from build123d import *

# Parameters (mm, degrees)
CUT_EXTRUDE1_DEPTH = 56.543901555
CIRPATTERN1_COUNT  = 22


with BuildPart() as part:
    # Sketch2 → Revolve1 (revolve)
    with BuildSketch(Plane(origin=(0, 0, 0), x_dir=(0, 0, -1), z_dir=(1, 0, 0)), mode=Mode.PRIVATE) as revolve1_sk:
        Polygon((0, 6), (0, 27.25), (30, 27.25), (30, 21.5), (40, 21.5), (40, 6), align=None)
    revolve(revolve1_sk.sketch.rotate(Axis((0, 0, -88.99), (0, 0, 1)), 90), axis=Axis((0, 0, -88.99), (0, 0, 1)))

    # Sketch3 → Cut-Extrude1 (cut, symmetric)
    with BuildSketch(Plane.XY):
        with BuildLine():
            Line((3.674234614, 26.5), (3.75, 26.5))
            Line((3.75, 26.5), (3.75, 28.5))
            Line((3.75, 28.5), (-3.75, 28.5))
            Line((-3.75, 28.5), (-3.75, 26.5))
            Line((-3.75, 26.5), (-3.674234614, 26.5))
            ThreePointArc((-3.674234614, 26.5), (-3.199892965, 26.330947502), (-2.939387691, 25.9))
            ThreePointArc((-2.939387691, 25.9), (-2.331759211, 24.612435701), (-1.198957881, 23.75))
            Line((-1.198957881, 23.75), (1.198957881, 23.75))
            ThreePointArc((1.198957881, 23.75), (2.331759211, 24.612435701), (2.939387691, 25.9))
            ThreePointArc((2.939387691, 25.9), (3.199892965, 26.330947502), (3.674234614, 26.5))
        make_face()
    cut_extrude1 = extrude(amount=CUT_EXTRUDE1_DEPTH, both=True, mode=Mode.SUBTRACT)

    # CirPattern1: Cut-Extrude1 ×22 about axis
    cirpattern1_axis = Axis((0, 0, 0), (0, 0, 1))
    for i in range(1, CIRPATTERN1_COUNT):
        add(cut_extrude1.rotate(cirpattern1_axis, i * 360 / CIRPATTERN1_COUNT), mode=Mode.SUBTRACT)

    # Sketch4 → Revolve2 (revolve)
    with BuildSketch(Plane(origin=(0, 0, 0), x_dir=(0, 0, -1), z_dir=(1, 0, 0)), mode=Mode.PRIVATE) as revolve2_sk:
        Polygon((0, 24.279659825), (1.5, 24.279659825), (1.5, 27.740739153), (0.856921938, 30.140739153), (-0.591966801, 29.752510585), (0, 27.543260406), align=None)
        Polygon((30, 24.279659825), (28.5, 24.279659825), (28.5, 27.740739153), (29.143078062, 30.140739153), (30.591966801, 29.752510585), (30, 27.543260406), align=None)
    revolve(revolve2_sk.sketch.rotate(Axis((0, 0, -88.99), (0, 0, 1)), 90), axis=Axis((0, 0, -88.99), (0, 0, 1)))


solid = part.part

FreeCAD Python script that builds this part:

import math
import FreeCAD as App
import Part
import Sketcher

V = App.Vector
Q = App.Units.Quantity

doc = App.newDocument("Part")
body = doc.addObject("PartDesign::Body", "Body")

sketch1 = body.newObject("Sketcher::SketchObject", "Sketch")
sketch1.AttachmentSupport = (doc.getObject("YZ_Plane"), [""])
sketch1.MapMode = "FlatFace"
sketch1.addGeometry([
    Part.LineSegment(V(27, 0, 0), V(6, 0, 0)),
    Part.LineSegment(V(6, 0, 0), V(6, -40, 0)),
    Part.LineSegment(V(6, -40, 0), V(22, -40, 0)),
    Part.LineSegment(V(22, -40, 0), V(22, -30, 0)),
    Part.LineSegment(V(22, -30, 0), V(27, -30, 0)),
    Part.LineSegment(V(27, -30, 0), V(27, 0, 0)),
], False)
sketch1.addConstraint([
    Sketcher.Constraint("Coincident", 0, 2, 1, 1),
    Sketcher.Constraint("Coincident", 1, 2, 2, 1),
    Sketcher.Constraint("Coincident", 2, 2, 3, 1),
    Sketcher.Constraint("Coincident", 3, 2, 4, 1),
    Sketcher.Constraint("Coincident", 4, 2, 5, 1),
    Sketcher.Constraint("Coincident", 5, 2, 0, 1),
    Sketcher.Constraint("Horizontal", 0),
    Sketcher.Constraint("Vertical", 1),
    Sketcher.Constraint("Horizontal", 2),
    Sketcher.Constraint("Vertical", 3),
    Sketcher.Constraint("Horizontal", 4),
    Sketcher.Constraint("Vertical", 5),
    Sketcher.Constraint("PointOnObject", 0, 2, -1),
    Sketcher.Constraint("DistanceY", 1, 2, 1, 1, Q("40 mm")),
    Sketcher.Constraint("DistanceY", 3, 1, 3, 2, Q("10 mm")),
    Sketcher.Constraint("DistanceX", 2, 1, 2, 2, Q("15.5 mm")),
    Sketcher.Constraint("DistanceX", -1, 1, 0, 2, Q("6 mm")),
    Sketcher.Constraint("DistanceX", 0, 2, 0, 1, Q("21.25 mm")),
])
revolution = body.newObject("PartDesign::Revolution", "Revolution")
revolution.Profile = sketch1
revolution.ReferenceAxis = (sketch1, ["V_Axis"])
revolution.Angle = 360

sketch2 = body.newObject("Sketcher::SketchObject", "Sketch001")
sketch2.AttachmentSupport = (doc.getObject("XY_Plane"), [""])
sketch2.MapMode = "FlatFace"
sketch2.addGeometry([
    Part.LineSegment(V(3.67, 26.5, 0), V(3.75, 26.5, 0)),
    Part.LineSegment(V(3.75, 26.5, 0), V(3.75, 28.5, 0)),
    Part.LineSegment(V(3.75, 28.5, 0), V(-3.75, 28.5, 0)),
    Part.LineSegment(V(-3.75, 28.5, 0), V(-3.75, 26.5, 0)),
    Part.LineSegment(V(-3.75, 26.5, 0), V(-3.67, 26.5, 0)),
    Part.ArcOfCircle(Part.Circle(V(-3.67, 25.75, 0), V(0, 0, 1), 0.75), math.radians(12), math.radians(90)),
    Part.ArcOfCircle(Part.Circle(V(0, 26.5, 0), V(0, 0, 1), 3), math.radians(-168), math.radians(-114)),
    Part.LineSegment(V(-1.2, 23.75, 0), V(1.2, 23.75, 0)),
    Part.ArcOfCircle(Part.Circle(V(0, 26.5, 0), V(0, 0, 1), 3), math.radians(-66), math.radians(-12)),
    Part.ArcOfCircle(Part.Circle(V(3.67, 25.75, 0), V(0, 0, 1), 0.75), math.radians(90), math.radians(168)),
], False)
sketch2.addConstraint([
    Sketcher.Constraint("Coincident", 0, 2, 1, 1),
    Sketcher.Constraint("Coincident", 1, 2, 2, 1),
    Sketcher.Constraint("Coincident", 2, 2, 3, 1),
    Sketcher.Constraint("Coincident", 3, 2, 4, 1),
    Sketcher.Constraint("Tangent", 4, 2, 5, 2),
    Sketcher.Constraint("Tangent", 5, 1, 6, 1),
    Sketcher.Constraint("Coincident", 6, 2, 7, 1),
    Sketcher.Constraint("Coincident", 7, 2, 8, 1),
    Sketcher.Constraint("Tangent", 8, 2, 9, 2),
    Sketcher.Constraint("Tangent", 9, 1, 0, 1),
    Sketcher.Constraint("Horizontal", 0),
    Sketcher.Constraint("Vertical", 1),
    Sketcher.Constraint("Horizontal", 2),
    Sketcher.Constraint("Vertical", 3),
    Sketcher.Constraint("Horizontal", 4),
    Sketcher.Constraint("Horizontal", 7),
    Sketcher.Constraint("Coincident", 8, 3, 6, 3),
    Sketcher.Constraint("Equal", 6, 8),
    Sketcher.Constraint("Equal", 5, 9),
    Sketcher.Constraint("Symmetric", 5, 3, 9, 3, -2),
    Sketcher.Constraint("Horizontal", 8, 3, 0, 2),
    Sketcher.Constraint("Equal", 0, 4),
    Sketcher.Constraint("Radius", 6, Q("3 mm")),
    Sketcher.Constraint("DistanceY", 1, 1, 1, 2, Q("2 mm")),
    Sketcher.Constraint("Radius", 5, Q("0.75 mm")),
    Sketcher.Constraint("DistanceX", 2, 2, 2, 1, Q("7.5 mm")),
    Sketcher.Constraint("DistanceY", 6, 2, 5, 3, Q("2 mm")),
    Sketcher.Constraint("DistanceY", -1, 1, 6, 3, Q("26.5 mm")),
])
pocket1 = body.newObject("PartDesign::Pocket", "Pocket")
pocket1.Profile = sketch2
pocket1.Length = 113.087803
pocket1.Midplane = True
doc.recompute()

polarpattern = body.newObject("PartDesign::PolarPattern", "PolarPattern")
polarpattern.Originals = [pocket1]
polarpattern.Axis = (doc.getObject("Z_Axis"), [""])
polarpattern.Angle = 360
polarpattern.Occurrences = 22
body.Tip = polarpattern

sketch3 = body.newObject("Sketcher::SketchObject", "Sketch002")
sketch3.AttachmentSupport = (doc.getObject("YZ_Plane"), [""])
sketch3.MapMode = "FlatFace"
sketch3.addGeometry([
    Part.LineSegment(V(24.3, 0, 0), V(24.3, -1.5, 0)),
    Part.LineSegment(V(24.3, -1.5, 0), V(27.7, -1.5, 0)),
    Part.LineSegment(V(27.7, -1.5, 0), V(30.1, -0.9, 0)),
    Part.LineSegment(V(30.1, -0.9, 0), V(29.8, 0.6, 0)),
    Part.LineSegment(V(29.8, 0.6, 0), V(27.5, 0, 0)),
    Part.LineSegment(V(27.5, 0, 0), V(24.3, 0, 0)),
    Part.LineSegment(V(24.3, -28.5, 0), V(24.3, -30, 0)),
    Part.LineSegment(V(24.3, -30, 0), V(27.5, -30, 0)),
    Part.LineSegment(V(27.5, -30, 0), V(29.8, -30.6, 0)),
    Part.LineSegment(V(29.8, -30.6, 0), V(30.1, -29.1, 0)),
    Part.LineSegment(V(30.1, -29.1, 0), V(27.7, -28.5, 0)),
    Part.LineSegment(V(27.7, -28.5, 0), V(24.3, -28.5, 0)),
], False)
sketch3.addConstraint([
    Sketcher.Constraint("Coincident", 0, 2, 1, 1),
    Sketcher.Constraint("Coincident", 1, 2, 2, 1),
    Sketcher.Constraint("Coincident", 2, 2, 3, 1),
    Sketcher.Constraint("Coincident", 3, 2, 4, 1),
    Sketcher.Constraint("Coincident", 4, 2, 5, 1),
    Sketcher.Constraint("Coincident", 5, 2, 0, 1),
    Sketcher.Constraint("Coincident", 6, 2, 7, 1),
    Sketcher.Constraint("Coincident", 7, 2, 8, 1),
    Sketcher.Constraint("Coincident", 8, 2, 9, 1),
    Sketcher.Constraint("Coincident", 9, 2, 10, 1),
    Sketcher.Constraint("Coincident", 10, 2, 11, 1),
    Sketcher.Constraint("Coincident", 11, 2, 6, 1),
    Sketcher.Constraint("Vertical", 0),
    Sketcher.Constraint("Horizontal", 1),
    Sketcher.Constraint("Horizontal", 5),
    Sketcher.Constraint("Vertical", 6),
    Sketcher.Constraint("Horizontal", 7),
    Sketcher.Constraint("Horizontal", 11),
    Sketcher.Constraint("PointOnObject", 4, 2, -1),
    Sketcher.Constraint("Perpendicular", 2, 3),
    Sketcher.Constraint("Perpendicular", 3, 4),
    Sketcher.Constraint("Perpendicular", 8, 9),
    Sketcher.Constraint("Perpendicular", 9, 10),
    Sketcher.Constraint("Vertical", 5, 2, 6, 2),
    Sketcher.Constraint("Vertical", 4, 2, 7, 2),
    Sketcher.Constraint("Vertical", 3, 2, 8, 2),
    Sketcher.Constraint("Vertical", 2, 2, 9, 2),
    Sketcher.Constraint("Vertical", 1, 2, 10, 2),
    Sketcher.Constraint("Equal", 0, 6),
    Sketcher.Constraint("Angle", 2, Q("15 deg")),
    Sketcher.Constraint("DistanceY", 0, 2, 0, 1, Q("1.5 mm")),
    Sketcher.Constraint("DistanceY", 6, 2, -1, 1, Q("30 mm")),
    Sketcher.Constraint("Distance", 3, Q("1.5 mm")),
    Sketcher.Constraint("DistanceX", 1, 2, 2, 2, Q("2.4 mm")),
    Sketcher.Constraint("DistanceX", 5, 2, 5, 1, Q("3.263601 mm")),
    Sketcher.Constraint("DistanceX", -1, 1, 0, 2, Q("24.27966 mm")),
])
revolution2 = body.newObject("PartDesign::Revolution", "Revolution001")
revolution2.Profile = sketch3
revolution2.ReferenceAxis = (sketch3, ["V_Axis"])
revolution2.Angle = 360

doc.recompute()
